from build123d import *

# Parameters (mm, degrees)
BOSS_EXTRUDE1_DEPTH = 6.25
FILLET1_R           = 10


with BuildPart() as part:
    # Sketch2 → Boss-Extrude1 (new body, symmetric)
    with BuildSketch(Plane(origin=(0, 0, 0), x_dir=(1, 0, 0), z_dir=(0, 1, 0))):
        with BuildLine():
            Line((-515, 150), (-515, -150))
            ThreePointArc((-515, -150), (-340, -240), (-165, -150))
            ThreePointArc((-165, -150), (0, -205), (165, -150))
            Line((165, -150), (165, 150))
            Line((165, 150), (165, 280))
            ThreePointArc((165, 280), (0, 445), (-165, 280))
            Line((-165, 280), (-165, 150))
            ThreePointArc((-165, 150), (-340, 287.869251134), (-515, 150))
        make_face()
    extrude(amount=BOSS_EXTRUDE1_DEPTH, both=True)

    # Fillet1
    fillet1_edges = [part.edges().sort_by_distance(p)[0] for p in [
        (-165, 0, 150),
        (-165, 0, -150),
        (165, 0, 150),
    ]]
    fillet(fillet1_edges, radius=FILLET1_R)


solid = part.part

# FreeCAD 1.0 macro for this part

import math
import FreeCAD as App
import Part
import Sketcher
from FreeCAD import Vector
Q = App.Units.Quantity


def edges_at(feature, points):
    """Names of the edges that pass closest to the given points."""
    edges = feature.Shape.Edges
    near = lambda p: min(range(len(edges)), key=lambda i: edges[i].distToShape(Part.Vertex(*p))[0])
    return sorted({f"Edge{near(p) + 1}" for p in points})

doc = App.newDocument("Part")
params = doc.addObject("Spreadsheet::Sheet", "Params")
for row, (alias, value) in enumerate([
    ("sketch1_radius", "275 mm"),
    ("sketch1_radius2", "165 mm"),
    ("sketch1_radius3", "180 mm"),
    ("sketch1_height", "300 mm"),
    ("sketch1_height2", "430 mm"),
    ("pad1_length", "12.5 mm"),
    ("fillet_radius", "10 mm"),
], start=1):
    params.set(f"A{row}", alias)
    params.set(f"B{row}", "=" + value)
    params.setAlias(f"B{row}", alias)

body = doc.addObject("PartDesign::Body", "Body")

# Sketch on XZ plane
sketch1 = body.newObject("Sketcher::SketchObject", "Sketch")
sketch1.AttachmentSupport = (doc.getObject("XZ_Plane"), [""])
sketch1.MapMode = "FlatFace"
sketch1.addGeometry(Part.LineSegment(Vector(-515, -150, 0), Vector(-515, 150, 0)), False)
sketch1.addGeometry(Part.ArcOfCircle(Part.Circle(Vector(-340, 25, 0), Vector(0, 0, 1), 215), math.radians(36), math.radians(144)), False)
sketch1.addGeometry(Part.ArcOfCircle(Part.Circle(Vector(0, -70, 0), Vector(0, 0, 1), 275), math.radians(53), math.radians(127)), False)
sketch1.addGeometry(Part.LineSegment(Vector(165, 150, 0), Vector(165, -280, 0)), False)
sketch1.addGeometry(Part.ArcOfCircle(Part.Circle(Vector(0, -280, 0), Vector(0, 0, 1), 165), math.radians(180), math.radians(360)), False)
sketch1.addGeometry(Part.LineSegment(Vector(-165, -280, 0), Vector(-165, -150, 0)), False)
sketch1.addGeometry(Part.ArcOfCircle(Part.Circle(Vector(-340, -108, 0), Vector(0, 0, 1), 180), math.radians(-166), math.radians(-14)), False)
sketch1.addConstraint(Sketcher.Constraint("Coincident", 0, 2, 1, 2))
sketch1.addConstraint(Sketcher.Constraint("Coincident", 1, 1, 2, 2))
sketch1.addConstraint(Sketcher.Constraint("Coincident", 2, 1, 3, 1))
sketch1.addConstraint(Sketcher.Constraint("Tangent", 3, 2, 4, 2))
sketch1.addConstraint(Sketcher.Constraint("Tangent", 4, 1, 5, 1))
sketch1.addConstraint(Sketcher.Constraint("Coincident", 5, 2, 6, 2))
sketch1.addConstraint(Sketcher.Constraint("Coincident", 6, 1, 0, 1))
sketch1.addConstraint(Sketcher.Constraint("Vertical", 0))
sketch1.addConstraint(Sketcher.Constraint("Vertical", 3))
sketch1.addConstraint(Sketcher.Constraint("Vertical", 5))
sketch1.addConstraint(Sketcher.Constraint("Symmetric", 2, 1, 5, 2, -1, 1))
sketch1.addConstraint(Sketcher.Constraint("Symmetric", 1, 1, 2, 1, -2))
sketch1.addConstraint(Sketcher.Constraint("Horizontal", 0, 2, 1, 1))
sketch1.addConstraint(Sketcher.Constraint("Horizontal", 5, 2, 6, 1))
sketch1.addConstraint(Sketcher.Constraint("Radius", 2, Q("275 mm")))
sketch1.addConstraint(Sketcher.Constraint("Radius", 4, Q("165 mm")))
sketch1.addConstraint(Sketcher.Constraint("Radius", 6, Q("180 mm")))
sketch1.addConstraint(Sketcher.Constraint("DistanceY", 0, 1, 0, 2, Q("300 mm")))
sketch1.addConstraint(Sketcher.Constraint("DistanceY", 3, 2, 3, 1, Q("430 mm")))
sketch1.addConstraint(Sketcher.Constraint("DistanceX", 1, 3, -1, 1, Q("340 mm")))
sketch1.addConstraint(Sketcher.Constraint("Radius", 1, Q("215.138889 mm")))
sketch1.setExpression("Constraints[14]", "Params.sketch1_radius")
sketch1.setExpression("Constraints[15]", "Params.sketch1_radius2")
sketch1.setExpression("Constraints[16]", "Params.sketch1_radius3")
sketch1.setExpression("Constraints[17]", "Params.sketch1_height")
sketch1.setExpression("Constraints[18]", "Params.sketch1_height2")
pad1 = body.newObject("PartDesign::Pad", "Pad")
pad1.Profile = sketch1
pad1.setExpression("Length", "Params.pad1_length")
pad1.Midplane = True
doc.recompute()

fillet = body.newObject("PartDesign::Fillet", "Fillet")
fillet.Base = (pad1, edges_at(pad1, [(-165, 0, 150), (-165, 0, -150), (165, 0, 150)]))
fillet.setExpression("Radius", "Params.fillet_radius")

doc.recompute()
